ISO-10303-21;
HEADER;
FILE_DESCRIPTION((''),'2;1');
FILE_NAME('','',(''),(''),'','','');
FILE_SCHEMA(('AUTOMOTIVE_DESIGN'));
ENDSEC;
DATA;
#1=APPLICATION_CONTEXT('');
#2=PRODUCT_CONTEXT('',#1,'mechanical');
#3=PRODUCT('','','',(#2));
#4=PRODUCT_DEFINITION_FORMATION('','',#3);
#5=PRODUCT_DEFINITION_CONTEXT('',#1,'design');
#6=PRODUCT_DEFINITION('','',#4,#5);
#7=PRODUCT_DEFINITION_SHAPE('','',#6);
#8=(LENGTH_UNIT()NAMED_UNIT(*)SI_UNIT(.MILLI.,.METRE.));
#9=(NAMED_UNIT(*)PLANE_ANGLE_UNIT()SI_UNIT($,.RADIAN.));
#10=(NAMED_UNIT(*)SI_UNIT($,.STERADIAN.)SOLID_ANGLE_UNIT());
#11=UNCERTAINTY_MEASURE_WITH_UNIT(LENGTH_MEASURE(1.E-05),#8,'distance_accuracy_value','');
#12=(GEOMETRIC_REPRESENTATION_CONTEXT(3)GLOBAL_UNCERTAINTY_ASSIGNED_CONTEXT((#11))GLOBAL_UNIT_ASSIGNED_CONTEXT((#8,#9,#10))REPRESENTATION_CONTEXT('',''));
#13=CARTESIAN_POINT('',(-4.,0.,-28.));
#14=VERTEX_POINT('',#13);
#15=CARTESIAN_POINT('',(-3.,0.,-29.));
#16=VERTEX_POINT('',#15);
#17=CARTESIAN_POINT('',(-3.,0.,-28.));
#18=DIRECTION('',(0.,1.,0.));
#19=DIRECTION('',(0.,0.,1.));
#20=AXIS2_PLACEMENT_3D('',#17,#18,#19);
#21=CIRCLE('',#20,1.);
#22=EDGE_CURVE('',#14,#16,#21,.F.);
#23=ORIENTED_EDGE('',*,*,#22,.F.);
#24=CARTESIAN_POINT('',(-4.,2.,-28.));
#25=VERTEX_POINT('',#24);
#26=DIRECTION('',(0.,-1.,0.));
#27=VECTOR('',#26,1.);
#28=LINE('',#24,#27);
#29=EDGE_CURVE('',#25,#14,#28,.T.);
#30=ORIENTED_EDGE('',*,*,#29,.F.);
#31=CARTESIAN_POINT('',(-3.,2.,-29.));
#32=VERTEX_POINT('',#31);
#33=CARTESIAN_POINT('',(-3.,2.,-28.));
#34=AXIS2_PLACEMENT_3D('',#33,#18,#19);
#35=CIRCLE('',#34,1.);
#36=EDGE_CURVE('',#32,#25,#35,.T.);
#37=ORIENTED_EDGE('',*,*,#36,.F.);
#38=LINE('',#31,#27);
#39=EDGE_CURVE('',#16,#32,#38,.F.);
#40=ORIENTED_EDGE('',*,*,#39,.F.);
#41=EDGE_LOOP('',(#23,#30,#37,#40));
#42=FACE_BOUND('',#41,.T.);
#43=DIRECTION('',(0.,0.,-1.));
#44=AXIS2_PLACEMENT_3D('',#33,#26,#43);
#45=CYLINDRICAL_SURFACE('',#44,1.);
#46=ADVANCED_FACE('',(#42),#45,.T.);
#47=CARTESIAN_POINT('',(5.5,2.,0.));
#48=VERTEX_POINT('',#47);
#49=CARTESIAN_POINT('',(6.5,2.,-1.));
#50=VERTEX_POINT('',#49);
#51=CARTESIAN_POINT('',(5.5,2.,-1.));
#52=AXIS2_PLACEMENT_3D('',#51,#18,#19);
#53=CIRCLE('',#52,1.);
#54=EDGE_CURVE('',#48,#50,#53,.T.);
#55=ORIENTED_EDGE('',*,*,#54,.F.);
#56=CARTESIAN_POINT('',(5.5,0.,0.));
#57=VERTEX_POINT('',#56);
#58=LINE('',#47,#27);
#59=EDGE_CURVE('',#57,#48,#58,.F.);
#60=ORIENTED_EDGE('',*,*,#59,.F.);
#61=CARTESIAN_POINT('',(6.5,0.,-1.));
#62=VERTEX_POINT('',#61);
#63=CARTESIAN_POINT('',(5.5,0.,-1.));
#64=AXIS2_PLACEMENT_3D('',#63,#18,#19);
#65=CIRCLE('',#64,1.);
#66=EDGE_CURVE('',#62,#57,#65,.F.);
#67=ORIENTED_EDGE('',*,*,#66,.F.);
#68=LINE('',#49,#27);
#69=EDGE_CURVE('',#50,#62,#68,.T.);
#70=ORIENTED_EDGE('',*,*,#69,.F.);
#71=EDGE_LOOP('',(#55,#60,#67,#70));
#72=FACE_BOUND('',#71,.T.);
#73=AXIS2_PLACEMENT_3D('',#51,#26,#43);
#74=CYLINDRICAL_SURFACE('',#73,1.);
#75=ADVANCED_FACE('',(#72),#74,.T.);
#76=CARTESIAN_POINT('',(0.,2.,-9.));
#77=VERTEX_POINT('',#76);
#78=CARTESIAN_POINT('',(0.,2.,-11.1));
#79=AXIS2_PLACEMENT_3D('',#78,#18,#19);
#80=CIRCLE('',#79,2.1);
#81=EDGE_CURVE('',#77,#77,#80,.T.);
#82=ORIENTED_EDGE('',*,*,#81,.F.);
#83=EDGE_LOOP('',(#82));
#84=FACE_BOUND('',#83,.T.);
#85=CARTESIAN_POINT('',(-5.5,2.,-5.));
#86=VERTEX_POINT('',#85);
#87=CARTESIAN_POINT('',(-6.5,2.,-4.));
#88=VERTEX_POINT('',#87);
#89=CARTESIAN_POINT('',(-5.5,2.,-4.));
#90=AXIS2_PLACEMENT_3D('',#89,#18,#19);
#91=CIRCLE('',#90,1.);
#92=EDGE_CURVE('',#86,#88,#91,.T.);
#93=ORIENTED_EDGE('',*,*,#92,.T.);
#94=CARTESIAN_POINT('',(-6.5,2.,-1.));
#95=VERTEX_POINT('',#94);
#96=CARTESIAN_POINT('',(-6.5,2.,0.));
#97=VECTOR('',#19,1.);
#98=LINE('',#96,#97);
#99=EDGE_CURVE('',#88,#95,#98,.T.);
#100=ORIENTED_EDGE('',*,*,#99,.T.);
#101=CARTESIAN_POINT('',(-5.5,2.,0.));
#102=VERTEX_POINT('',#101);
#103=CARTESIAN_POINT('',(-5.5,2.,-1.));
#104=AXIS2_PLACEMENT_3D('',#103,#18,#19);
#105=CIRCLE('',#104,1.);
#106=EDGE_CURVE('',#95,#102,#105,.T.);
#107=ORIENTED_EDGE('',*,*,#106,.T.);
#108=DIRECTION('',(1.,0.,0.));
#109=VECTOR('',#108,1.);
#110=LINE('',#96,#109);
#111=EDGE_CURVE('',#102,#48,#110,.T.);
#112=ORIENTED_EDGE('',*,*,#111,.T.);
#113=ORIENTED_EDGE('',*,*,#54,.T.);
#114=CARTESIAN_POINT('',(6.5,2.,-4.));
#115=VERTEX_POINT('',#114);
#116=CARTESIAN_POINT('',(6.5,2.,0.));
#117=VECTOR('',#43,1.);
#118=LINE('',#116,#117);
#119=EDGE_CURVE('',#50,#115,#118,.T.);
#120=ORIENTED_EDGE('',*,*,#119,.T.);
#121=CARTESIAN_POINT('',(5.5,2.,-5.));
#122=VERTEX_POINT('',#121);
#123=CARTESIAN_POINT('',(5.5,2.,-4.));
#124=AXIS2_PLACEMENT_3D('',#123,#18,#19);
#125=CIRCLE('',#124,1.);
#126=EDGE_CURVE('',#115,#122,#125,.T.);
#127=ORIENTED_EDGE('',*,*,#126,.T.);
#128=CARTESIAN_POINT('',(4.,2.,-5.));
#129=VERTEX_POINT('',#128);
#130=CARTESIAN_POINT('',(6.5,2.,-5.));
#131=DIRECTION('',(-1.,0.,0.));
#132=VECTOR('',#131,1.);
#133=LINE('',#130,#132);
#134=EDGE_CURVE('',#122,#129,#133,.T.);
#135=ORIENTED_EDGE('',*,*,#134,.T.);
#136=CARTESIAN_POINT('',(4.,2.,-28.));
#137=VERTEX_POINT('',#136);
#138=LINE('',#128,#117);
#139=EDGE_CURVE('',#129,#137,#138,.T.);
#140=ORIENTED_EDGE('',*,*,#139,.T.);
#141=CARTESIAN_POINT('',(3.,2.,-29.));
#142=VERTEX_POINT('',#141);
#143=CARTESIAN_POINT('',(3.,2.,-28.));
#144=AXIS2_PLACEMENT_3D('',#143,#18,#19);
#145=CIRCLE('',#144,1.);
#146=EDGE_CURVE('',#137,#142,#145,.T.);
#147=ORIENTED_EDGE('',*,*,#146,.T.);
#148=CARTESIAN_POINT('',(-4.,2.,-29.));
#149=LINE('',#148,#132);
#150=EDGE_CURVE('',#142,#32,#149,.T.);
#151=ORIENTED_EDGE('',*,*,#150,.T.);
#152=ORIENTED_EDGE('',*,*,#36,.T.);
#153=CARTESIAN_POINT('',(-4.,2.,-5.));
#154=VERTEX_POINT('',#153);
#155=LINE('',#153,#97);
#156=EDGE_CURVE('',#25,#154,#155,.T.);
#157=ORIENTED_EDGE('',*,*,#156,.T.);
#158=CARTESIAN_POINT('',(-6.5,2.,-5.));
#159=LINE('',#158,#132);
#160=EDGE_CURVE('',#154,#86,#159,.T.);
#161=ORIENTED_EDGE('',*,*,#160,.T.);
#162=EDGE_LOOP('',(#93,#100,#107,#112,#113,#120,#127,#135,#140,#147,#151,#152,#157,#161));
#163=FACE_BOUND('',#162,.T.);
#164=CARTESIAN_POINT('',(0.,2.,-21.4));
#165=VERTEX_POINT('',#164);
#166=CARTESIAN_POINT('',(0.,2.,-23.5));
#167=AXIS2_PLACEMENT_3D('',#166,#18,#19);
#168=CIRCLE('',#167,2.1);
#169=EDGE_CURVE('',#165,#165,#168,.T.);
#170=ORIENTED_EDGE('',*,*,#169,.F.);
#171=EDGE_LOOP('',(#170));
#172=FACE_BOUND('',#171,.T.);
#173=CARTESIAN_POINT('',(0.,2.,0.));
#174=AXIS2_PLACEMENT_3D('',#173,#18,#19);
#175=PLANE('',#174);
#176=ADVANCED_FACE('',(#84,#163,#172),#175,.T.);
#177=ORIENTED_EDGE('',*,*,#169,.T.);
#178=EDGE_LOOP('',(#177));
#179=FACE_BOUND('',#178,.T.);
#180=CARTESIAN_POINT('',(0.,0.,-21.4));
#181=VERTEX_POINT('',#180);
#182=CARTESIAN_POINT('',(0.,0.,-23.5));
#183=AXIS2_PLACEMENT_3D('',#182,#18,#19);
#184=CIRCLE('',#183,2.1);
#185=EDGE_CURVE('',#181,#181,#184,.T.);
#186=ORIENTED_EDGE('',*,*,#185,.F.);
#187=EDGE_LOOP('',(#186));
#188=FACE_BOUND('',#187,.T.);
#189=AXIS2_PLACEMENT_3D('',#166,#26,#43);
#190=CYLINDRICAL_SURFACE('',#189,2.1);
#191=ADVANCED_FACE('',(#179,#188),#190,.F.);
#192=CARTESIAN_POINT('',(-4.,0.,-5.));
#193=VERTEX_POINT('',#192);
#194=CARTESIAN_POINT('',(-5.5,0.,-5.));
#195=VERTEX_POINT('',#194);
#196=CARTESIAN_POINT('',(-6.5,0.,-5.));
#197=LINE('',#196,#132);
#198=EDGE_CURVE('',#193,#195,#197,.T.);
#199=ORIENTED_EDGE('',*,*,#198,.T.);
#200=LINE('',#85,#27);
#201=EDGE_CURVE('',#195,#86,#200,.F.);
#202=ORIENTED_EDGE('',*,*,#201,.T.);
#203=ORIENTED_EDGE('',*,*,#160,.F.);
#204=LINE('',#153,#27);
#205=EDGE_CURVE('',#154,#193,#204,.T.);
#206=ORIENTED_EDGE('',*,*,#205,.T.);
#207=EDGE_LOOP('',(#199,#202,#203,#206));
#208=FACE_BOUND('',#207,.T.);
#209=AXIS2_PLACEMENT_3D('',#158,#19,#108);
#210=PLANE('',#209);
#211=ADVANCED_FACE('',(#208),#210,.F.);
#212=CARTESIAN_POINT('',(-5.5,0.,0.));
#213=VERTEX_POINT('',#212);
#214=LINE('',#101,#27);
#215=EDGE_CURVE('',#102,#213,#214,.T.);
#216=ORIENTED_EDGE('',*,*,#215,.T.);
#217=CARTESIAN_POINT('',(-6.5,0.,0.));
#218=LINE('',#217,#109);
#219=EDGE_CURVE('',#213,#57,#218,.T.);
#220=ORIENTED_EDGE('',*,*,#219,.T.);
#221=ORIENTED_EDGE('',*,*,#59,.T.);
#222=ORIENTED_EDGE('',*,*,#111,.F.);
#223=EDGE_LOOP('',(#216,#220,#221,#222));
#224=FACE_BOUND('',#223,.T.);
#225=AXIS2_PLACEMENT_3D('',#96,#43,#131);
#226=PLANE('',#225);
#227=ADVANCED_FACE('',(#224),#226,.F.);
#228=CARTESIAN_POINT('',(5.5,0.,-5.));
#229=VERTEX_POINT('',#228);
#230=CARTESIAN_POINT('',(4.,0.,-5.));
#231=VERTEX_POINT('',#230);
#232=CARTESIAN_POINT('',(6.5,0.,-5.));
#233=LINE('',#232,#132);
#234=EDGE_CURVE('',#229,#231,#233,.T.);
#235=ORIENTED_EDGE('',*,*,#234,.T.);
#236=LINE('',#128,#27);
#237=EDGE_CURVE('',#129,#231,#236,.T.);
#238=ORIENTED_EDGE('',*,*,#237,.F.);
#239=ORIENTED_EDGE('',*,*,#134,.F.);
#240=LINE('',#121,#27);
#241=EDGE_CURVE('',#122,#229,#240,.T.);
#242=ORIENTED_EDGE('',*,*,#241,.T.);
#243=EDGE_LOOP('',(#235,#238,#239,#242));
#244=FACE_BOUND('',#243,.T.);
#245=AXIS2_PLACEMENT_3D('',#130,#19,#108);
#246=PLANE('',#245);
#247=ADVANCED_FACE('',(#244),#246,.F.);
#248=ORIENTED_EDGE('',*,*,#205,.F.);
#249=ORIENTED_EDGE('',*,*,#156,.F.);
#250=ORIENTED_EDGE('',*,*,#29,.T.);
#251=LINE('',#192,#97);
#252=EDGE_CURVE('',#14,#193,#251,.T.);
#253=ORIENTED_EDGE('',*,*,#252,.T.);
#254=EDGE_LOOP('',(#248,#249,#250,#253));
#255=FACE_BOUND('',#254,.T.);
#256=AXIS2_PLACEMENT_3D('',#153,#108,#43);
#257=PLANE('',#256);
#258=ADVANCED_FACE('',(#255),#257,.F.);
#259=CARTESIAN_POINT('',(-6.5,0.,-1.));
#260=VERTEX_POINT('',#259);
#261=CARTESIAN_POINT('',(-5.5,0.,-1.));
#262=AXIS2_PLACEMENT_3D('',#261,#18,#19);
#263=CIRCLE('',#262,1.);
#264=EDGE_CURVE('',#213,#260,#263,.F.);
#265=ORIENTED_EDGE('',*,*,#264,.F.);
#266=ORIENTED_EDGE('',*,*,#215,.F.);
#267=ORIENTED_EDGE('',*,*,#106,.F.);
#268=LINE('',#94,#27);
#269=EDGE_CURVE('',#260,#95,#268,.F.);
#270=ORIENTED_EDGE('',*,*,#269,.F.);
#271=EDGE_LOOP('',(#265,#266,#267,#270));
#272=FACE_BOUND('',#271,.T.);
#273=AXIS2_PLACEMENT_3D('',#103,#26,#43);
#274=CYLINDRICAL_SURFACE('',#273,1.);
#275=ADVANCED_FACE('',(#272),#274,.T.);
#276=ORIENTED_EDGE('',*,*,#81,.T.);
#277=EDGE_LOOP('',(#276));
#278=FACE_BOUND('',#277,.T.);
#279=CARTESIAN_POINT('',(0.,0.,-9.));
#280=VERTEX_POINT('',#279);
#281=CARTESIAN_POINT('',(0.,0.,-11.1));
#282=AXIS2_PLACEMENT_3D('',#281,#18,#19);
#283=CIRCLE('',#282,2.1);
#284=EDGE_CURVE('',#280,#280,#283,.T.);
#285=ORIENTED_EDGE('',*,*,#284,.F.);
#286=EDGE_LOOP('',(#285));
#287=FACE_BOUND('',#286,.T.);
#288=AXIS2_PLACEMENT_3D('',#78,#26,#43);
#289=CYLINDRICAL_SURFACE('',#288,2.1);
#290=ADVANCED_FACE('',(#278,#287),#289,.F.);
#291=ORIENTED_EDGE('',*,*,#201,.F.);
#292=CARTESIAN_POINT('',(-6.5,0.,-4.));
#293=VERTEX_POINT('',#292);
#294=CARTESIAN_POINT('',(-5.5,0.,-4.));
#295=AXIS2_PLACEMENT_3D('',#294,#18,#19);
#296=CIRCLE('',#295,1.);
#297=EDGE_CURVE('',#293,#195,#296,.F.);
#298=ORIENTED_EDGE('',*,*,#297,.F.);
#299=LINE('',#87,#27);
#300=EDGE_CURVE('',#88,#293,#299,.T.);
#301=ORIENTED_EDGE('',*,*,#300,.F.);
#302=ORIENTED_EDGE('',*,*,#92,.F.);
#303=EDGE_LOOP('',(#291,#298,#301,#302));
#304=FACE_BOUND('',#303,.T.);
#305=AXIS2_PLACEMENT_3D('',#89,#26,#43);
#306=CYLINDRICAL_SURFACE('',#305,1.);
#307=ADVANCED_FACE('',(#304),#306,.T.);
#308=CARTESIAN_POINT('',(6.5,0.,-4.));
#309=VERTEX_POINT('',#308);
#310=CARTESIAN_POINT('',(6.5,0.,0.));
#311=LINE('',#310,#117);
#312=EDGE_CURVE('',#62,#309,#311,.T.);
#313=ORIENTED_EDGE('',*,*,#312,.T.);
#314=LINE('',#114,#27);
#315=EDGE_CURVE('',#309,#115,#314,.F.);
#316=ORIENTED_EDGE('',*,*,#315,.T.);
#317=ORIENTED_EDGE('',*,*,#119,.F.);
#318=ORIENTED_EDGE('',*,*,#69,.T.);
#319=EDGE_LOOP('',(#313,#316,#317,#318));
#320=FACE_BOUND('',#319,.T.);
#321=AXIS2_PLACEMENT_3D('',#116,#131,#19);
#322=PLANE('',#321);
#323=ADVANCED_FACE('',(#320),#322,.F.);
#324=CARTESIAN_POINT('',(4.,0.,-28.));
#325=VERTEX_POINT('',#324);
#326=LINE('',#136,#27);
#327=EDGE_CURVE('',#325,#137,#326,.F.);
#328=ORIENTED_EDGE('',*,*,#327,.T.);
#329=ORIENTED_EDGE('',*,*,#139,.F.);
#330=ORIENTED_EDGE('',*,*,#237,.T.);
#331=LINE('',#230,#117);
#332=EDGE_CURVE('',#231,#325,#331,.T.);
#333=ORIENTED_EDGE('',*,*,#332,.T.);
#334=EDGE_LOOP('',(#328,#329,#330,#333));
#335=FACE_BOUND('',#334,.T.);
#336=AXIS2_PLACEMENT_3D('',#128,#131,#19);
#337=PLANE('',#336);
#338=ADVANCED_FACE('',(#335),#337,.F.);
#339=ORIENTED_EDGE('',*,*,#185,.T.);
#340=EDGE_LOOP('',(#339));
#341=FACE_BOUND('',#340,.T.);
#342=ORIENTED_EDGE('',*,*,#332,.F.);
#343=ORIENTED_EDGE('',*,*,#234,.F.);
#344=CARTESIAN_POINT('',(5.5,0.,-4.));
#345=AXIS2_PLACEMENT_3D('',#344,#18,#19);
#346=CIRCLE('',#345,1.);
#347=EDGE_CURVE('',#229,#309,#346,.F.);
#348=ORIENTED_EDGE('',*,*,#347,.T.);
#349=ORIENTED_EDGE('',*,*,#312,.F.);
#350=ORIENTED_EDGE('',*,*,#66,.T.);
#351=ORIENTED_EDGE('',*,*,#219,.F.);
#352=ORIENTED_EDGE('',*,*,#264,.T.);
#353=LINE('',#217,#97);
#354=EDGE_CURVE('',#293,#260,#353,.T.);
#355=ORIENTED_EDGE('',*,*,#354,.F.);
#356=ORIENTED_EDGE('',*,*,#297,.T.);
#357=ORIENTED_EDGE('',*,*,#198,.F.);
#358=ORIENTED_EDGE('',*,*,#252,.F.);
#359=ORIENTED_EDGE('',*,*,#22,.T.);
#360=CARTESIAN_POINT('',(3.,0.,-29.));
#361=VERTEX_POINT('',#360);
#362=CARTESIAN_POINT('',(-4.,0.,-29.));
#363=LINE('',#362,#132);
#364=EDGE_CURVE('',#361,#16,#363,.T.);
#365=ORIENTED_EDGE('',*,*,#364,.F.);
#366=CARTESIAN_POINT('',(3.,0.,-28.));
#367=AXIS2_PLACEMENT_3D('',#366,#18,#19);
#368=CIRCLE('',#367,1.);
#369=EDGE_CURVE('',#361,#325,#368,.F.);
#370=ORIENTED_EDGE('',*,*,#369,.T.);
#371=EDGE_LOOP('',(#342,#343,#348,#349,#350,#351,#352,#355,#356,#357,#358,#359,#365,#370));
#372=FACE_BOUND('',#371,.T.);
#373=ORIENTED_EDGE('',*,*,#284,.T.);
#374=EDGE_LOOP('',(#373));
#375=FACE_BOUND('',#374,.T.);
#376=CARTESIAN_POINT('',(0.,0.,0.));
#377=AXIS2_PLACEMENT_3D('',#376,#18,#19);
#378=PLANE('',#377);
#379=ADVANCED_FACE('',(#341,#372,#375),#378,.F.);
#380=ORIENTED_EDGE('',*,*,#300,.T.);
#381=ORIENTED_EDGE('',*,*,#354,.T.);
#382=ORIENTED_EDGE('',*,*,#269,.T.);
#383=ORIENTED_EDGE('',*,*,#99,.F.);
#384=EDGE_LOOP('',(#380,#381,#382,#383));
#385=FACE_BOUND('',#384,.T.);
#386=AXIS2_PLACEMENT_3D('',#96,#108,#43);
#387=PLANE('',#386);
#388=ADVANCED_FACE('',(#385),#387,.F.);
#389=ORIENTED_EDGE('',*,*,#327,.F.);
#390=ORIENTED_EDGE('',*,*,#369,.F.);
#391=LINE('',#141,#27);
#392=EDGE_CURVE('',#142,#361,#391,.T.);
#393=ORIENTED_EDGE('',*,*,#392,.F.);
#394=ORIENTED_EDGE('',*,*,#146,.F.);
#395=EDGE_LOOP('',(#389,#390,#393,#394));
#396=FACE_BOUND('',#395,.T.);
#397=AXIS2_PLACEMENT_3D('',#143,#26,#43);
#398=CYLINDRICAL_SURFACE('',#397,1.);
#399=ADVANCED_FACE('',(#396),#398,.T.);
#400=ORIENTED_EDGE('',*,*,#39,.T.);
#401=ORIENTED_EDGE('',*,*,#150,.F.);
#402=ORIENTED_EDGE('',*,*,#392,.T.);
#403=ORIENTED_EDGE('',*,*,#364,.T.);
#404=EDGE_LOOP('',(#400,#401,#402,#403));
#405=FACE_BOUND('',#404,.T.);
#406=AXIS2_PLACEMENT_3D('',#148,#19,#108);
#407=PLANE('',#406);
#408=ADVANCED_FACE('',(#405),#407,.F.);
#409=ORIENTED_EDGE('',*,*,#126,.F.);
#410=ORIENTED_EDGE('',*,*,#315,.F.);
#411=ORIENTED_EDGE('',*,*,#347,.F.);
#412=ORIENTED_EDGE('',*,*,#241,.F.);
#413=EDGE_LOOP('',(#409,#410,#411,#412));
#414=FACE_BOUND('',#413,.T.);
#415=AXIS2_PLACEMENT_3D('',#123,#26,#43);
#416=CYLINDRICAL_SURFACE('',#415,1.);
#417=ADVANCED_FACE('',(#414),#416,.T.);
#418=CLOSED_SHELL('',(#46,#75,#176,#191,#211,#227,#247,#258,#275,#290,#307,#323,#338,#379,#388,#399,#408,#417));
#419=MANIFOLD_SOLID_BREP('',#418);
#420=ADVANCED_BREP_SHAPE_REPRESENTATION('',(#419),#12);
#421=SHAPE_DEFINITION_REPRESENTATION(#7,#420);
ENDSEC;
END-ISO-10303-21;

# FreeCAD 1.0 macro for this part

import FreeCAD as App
import Part
import Sketcher
from FreeCAD import Vector


def edges_at(feature, points):
    """Names of the edges that pass closest to the given points."""
    edges = feature.Shape.Edges
    near = lambda p: min(range(len(edges)), key=lambda i: edges[i].distToShape(Part.Vertex(*p))[0])
    return sorted({f"Edge{near(p) + 1}" for p in points})

doc = App.newDocument("Part")
body = doc.addObject("PartDesign::Body", "Body")

sketch1 = doc.addObject("Sketcher::SketchObject", "Sketch")
body.addObject(sketch1)
sketch1.AttachmentSupport = (doc.XZ_Plane, [""])
sketch1.MapMode = "FlatFace"
sketch1.addGeometry([
    Part.LineSegment(Vector(-6.5, 0, 0), Vector(6.5, 0, 0)),
    Part.LineSegment(Vector(6.5, 0, 0), Vector(6.5, -5, 0)),
    Part.LineSegment(Vector(6.5, -5, 0), Vector(4, -5, 0)),
    Part.LineSegment(Vector(4, -5, 0), Vector(4, -29, 0)),
    Part.LineSegment(Vector(4, -29, 0), Vector(-4, -29, 0)),
    Part.LineSegment(Vector(-4, -29, 0), Vector(-4, -5, 0)),
    Part.LineSegment(Vector(-4, -5, 0), Vector(-6.5, -5, 0)),
    Part.LineSegment(Vector(-6.5, -5, 0), Vector(-6.5, 0, 0)),
    Part.Circle(Vector(0, -11.1, 0), Vector(0, 0, 1), 2.1),
    Part.Circle(Vector(0, -23.5, 0), Vector(0, 0, 1), 2.1),
], False)
sketch1.addConstraint([
    Sketcher.Constraint("Coincident", 0, 2, 1, 1),
    Sketcher.Constraint("Coincident", 1, 2, 2, 1),
    Sketcher.Constraint("Coincident", 2, 2, 3, 1),
    Sketcher.Constraint("Coincident", 3, 2, 4, 1),
    Sketcher.Constraint("Coincident", 4, 2, 5, 1),
    Sketcher.Constraint("Coincident", 5, 2, 6, 1),
    Sketcher.Constraint("Coincident", 6, 2, 7, 1),
    Sketcher.Constraint("Coincident", 7, 2, 0, 1),
    Sketcher.Constraint("Horizontal", 0),
    Sketcher.Constraint("Vertical", 1),
    Sketcher.Constraint("Horizontal", 2),
    Sketcher.Constraint("Vertical", 3),
    Sketcher.Constraint("Horizontal", 4),
    Sketcher.Constraint("Vertical", 5),
    Sketcher.Constraint("Horizontal", 6),
    Sketcher.Constraint("Vertical", 7),
    Sketcher.Constraint("Equal", 8, 9),
    Sketcher.Constraint("Symmetric", 0, 2, 7, 2, -1, 1),
    Sketcher.Constraint("Symmetric", 2, 2, 5, 2, -2),
    Sketcher.Constraint("PointOnObject", 8, 3, -2),
    Sketcher.Constraint("PointOnObject", 9, 3, -2),
    Sketcher.Constraint("Diameter", 8, 4.2),
    Sketcher.Constraint("DistanceX", 0, 1, 0, 2, 13.0),
    Sketcher.Constraint("DistanceX", 4, 2, 4, 1, 8.0),
    Sketcher.Constraint("DistanceY", 1, 2, 1, 1, 5.0),
    Sketcher.Constraint("DistanceY", 3, 2, 3, 1, 24.0),
    Sketcher.Constraint("DistanceY", 8, 3, -1, 1, 11.1),
    Sketcher.Constraint("DistanceY", 9, 3, -1, 1, 23.5),
])
pad1 = doc.addObject("PartDesign::Pad", "Pad")
body.addObject(pad1)
pad1.Profile = sketch1
pad1.Length = 2
pad1.Reversed = True
doc.recompute()

fillet = doc.addObject("PartDesign::Fillet", "Fillet")
body.addObject(fillet)
fillet.Base = (pad1, edges_at(pad1, [(6.5, 1, 0)]))
fillet.Radius = 1
doc.recompute()

fillet2 = doc.addObject("PartDesign::Fillet", "Fillet001")
body.addObject(fillet2)
fillet2.Base = (fillet, edges_at(fillet, [(6.5, 1, -5)]))
fillet2.Radius = 1
doc.recompute()

fillet3 = doc.addObject("PartDesign::Fillet", "Fillet002")
body.addObject(fillet3)
fillet3.Base = (fillet2, edges_at(fillet2, [(-6.5, 1, 0)]))
fillet3.Radius = 1
doc.recompute()

fillet4 = doc.addObject("PartDesign::Fillet", "Fillet003")
body.addObject(fillet4)
fillet4.Base = (fillet3, edges_at(fillet3, [(-6.5, 1, -5)]))
fillet4.Radius = 1
doc.recompute()

fillet5 = doc.addObject("PartDesign::Fillet", "Fillet004")
body.addObject(fillet5)
fillet5.Base = (fillet4, edges_at(fillet4, [(-4, 1, -29)]))
fillet5.Radius = 1
doc.recompute()

fillet6 = doc.addObject("PartDesign::Fillet", "Fillet005")
body.addObject(fillet6)
fillet6.Base = (fillet5, edges_at(fillet5, [(4, 1, -29)]))
fillet6.Radius = 1

doc.recompute()
